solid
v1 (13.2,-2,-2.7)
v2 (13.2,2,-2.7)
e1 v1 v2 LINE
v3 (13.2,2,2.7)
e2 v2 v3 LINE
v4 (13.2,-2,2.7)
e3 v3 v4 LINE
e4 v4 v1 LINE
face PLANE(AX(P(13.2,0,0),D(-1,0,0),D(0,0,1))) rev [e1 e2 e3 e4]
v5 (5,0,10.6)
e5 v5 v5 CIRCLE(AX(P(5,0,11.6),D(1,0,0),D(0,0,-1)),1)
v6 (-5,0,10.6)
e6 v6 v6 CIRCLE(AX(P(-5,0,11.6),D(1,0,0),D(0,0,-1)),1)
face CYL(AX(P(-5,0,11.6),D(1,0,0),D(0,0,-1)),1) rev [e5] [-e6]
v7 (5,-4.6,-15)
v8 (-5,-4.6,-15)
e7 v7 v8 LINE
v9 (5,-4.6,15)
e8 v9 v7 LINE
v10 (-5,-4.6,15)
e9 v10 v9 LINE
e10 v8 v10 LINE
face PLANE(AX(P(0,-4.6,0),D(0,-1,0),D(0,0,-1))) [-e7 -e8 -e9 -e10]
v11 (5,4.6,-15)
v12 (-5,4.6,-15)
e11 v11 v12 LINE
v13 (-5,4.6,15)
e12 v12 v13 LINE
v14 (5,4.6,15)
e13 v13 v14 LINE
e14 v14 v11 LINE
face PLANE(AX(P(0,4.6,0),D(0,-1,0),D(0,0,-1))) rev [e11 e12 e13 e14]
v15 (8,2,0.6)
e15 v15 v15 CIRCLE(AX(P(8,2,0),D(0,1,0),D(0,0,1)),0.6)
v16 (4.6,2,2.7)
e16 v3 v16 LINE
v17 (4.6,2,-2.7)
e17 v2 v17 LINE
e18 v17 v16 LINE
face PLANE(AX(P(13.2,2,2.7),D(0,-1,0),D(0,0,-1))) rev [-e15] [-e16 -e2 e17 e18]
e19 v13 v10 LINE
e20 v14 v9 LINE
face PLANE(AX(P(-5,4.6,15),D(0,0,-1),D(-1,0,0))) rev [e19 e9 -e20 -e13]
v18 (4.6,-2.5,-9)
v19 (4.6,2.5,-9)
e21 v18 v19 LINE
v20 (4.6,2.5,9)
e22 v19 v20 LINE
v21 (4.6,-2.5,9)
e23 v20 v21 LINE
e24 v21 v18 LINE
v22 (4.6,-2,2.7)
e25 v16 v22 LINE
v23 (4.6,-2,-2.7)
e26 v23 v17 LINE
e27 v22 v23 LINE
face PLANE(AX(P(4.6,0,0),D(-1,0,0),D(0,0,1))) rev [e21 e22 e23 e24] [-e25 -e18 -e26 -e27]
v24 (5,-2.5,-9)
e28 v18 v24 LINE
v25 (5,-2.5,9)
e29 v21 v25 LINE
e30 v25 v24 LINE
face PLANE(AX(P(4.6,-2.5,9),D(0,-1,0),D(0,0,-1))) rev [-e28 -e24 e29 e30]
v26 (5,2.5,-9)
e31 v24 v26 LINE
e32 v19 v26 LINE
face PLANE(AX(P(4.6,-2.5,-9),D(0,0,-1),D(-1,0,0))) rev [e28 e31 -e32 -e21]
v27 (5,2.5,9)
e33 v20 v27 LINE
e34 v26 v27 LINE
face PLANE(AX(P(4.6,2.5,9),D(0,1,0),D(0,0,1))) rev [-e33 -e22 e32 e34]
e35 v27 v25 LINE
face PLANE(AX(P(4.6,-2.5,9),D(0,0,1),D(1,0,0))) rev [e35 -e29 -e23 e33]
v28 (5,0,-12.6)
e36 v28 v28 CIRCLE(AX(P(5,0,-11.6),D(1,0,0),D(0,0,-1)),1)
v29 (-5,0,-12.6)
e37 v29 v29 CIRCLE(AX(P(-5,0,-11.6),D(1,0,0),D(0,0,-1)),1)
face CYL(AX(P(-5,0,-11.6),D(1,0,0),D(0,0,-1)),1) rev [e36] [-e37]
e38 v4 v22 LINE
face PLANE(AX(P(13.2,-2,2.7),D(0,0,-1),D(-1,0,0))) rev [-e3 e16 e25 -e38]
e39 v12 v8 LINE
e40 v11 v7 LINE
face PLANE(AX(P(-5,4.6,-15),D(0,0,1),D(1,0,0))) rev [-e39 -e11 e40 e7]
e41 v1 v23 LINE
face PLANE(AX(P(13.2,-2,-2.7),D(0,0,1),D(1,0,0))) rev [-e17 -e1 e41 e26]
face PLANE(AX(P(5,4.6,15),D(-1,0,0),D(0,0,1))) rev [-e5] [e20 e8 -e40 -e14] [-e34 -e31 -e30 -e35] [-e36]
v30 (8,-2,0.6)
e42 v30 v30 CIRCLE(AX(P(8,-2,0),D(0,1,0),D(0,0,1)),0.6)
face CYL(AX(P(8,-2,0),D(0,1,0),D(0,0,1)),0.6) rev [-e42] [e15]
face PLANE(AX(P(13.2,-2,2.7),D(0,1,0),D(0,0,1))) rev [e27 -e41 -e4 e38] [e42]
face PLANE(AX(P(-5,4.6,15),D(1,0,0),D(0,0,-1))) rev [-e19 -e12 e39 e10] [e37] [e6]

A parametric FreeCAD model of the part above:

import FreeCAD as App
import Part
import Sketcher
Q = App.Units.Quantity


def add_polygon(sketch, points):
    """Adds a closed chain of lines whose ends are joined by coincident constraints."""
    first, n = sketch.GeometryCount, len(points)
    for a, b in zip(points, points[1:] + points[:1]):
        sketch.addGeometry(Part.LineSegment(App.Vector(*a, 0), App.Vector(*b, 0)), False)
    for i in range(n):
        sketch.addConstraint(Sketcher.Constraint("Coincident", first + i, 2, first + (i + 1) % n, 1))

doc = App.newDocument("Part")
body = doc.addObject("PartDesign::Body", "Body")

sketch1 = doc.addObject("Sketcher::SketchObject", "Sketch")
body.addObject(sketch1)
sketch1.AttachmentSupport = (doc.XZ_Plane, [""])
sketch1.MapMode = "FlatFace"
add_polygon(sketch1, [(-5, -15), (-5, 15), (5, 15), (5, -15)])
sketch1.addConstraint([
    Sketcher.Constraint("Vertical", 0),
    Sketcher.Constraint("Horizontal", 1),
    Sketcher.Constraint("Vertical", 2),
    Sketcher.Constraint("Horizontal", 3),
    Sketcher.Constraint("Symmetric", 0, 2, 2, 2, -1, 1),
    Sketcher.Constraint("DistanceX", 1, 1, 1, 2, Q("10 mm")),
    Sketcher.Constraint("DistanceY", 0, 1, 0, 2, Q("30 mm")),
])
pad1 = doc.addObject("PartDesign::Pad", "Pad")
body.addObject(pad1)
pad1.Profile = sketch1
pad1.Length = 9.2
pad1.Midplane = True

sketch2 = doc.addObject("Sketcher::SketchObject", "Sketch001")
body.addObject(sketch2)
sketch2.AttachmentSupport = (doc.YZ_Plane, [""])
sketch2.MapMode = "FlatFace"
sketch2.AttachmentOffset = App.Placement(App.Vector(0, 0, 5), App.Rotation())
add_polygon(sketch2, [(2, 9), (-2, 9), (-2, -9), (2, -9)])
sketch2.addConstraint([
    Sketcher.Constraint("Horizontal", 0),
    Sketcher.Constraint("Vertical", 1),
    Sketcher.Constraint("Horizontal", 2),
    Sketcher.Constraint("Vertical", 3),
    Sketcher.Constraint("Symmetric", 0, 2, 2, 2, -1, 1),
    Sketcher.Constraint("DistanceX", 0, 2, 0, 1, Q("5 mm")),
    Sketcher.Constraint("DistanceY", 1, 2, 1, 1, Q("18 mm")),
])
pocket1 = doc.addObject("PartDesign::Pocket", "Pocket")
body.addObject(pocket1)
pocket1.Profile = sketch2
pocket1.Length = 0.4

sketch3 = doc.addObject("Sketcher::SketchObject", "Sketch002")
body.addObject(sketch3)
sketch3.AttachmentSupport = (doc.YZ_Plane, [""])
sketch3.MapMode = "FlatFace"
sketch3.AttachmentOffset = App.Placement(App.Vector(0, 0, 4.6), App.Rotation())
add_polygon(sketch3, [(2, 2.7), (-2, 2.7), (-2, -2.7), (2, -2.7)])
sketch3.addConstraint([
    Sketcher.Constraint("Horizontal", 0),
    Sketcher.Constraint("Vertical", 1),
    Sketcher.Constraint("Horizontal", 2),
    Sketcher.Constraint("Vertical", 3),
    Sketcher.Constraint("Symmetric", 0, 2, 2, 2, -1, 1),
    Sketcher.Constraint("DistanceX", 0, 2, 0, 1, Q("4 mm")),
    Sketcher.Constraint("DistanceY", 1, 2, 1, 1, Q("5.4 mm")),
])
pad2 = doc.addObject("PartDesign::Pad", "Pad001")
body.addObject(pad2)
pad2.Profile = sketch3
pad2.Length = 8.6

sketch4 = doc.addObject("Sketcher::SketchObject", "Sketch003")
body.addObject(sketch4)
sketch4.AttachmentSupport = (doc.XZ_Plane, [""])
sketch4.MapMode = "FlatFace"
sketch4.AttachmentOffset = App.Placement(App.Vector(0, 0, -2), App.Rotation())
sketch4.addGeometry(Part.Circle(App.Vector(8, 0, 0), App.Vector(0, 0, 1), 0.6), False)
sketch4.addConstraint([
    Sketcher.Constraint("PointOnObject", 0, 3, -1),
    Sketcher.Constraint("Diameter", 0, Q("1.2 mm")),
    Sketcher.Constraint("DistanceX", -1, 1, 0, 3, Q("8 mm")),
])
pocket2 = doc.addObject("PartDesign::Pocket", "Pocket001")
body.addObject(pocket2)
pocket2.Profile = sketch4
pocket2.Length = 4
pocket2.Reversed = True

sketch5 = doc.addObject("Sketcher::SketchObject", "Sketch004")
body.addObject(sketch5)
sketch5.AttachmentSupport = (doc.YZ_Plane, [""])
sketch5.MapMode = "FlatFace"
sketch5.AttachmentOffset = App.Placement(App.Vector(0, 0, 5), App.Rotation())
sketch5.addGeometry([
    Part.Circle(App.Vector(0, -11.6, 0), App.Vector(0, 0, 1), 1),
    Part.Circle(App.Vector(0, 11.6, 0), App.Vector(0, 0, 1), 1),
], False)
sketch5.addConstraint([
    Sketcher.Constraint("Equal", 0, 1),
    Sketcher.Constraint("Symmetric", 0, 3, 1, 3, -1, 1),
    Sketcher.Constraint("PointOnObject", 0, 3, -2),
    Sketcher.Constraint("Diameter", 0, Q("2 mm")),
    Sketcher.Constraint("DistanceY", 0, 3, -1, 1, Q("11.6 mm")),
])
pocket3 = doc.addObject("PartDesign::Pocket", "Pocket002")
body.addObject(pocket3)
pocket3.Profile = sketch5
pocket3.Type = "ThroughAll"

doc.recompute()
